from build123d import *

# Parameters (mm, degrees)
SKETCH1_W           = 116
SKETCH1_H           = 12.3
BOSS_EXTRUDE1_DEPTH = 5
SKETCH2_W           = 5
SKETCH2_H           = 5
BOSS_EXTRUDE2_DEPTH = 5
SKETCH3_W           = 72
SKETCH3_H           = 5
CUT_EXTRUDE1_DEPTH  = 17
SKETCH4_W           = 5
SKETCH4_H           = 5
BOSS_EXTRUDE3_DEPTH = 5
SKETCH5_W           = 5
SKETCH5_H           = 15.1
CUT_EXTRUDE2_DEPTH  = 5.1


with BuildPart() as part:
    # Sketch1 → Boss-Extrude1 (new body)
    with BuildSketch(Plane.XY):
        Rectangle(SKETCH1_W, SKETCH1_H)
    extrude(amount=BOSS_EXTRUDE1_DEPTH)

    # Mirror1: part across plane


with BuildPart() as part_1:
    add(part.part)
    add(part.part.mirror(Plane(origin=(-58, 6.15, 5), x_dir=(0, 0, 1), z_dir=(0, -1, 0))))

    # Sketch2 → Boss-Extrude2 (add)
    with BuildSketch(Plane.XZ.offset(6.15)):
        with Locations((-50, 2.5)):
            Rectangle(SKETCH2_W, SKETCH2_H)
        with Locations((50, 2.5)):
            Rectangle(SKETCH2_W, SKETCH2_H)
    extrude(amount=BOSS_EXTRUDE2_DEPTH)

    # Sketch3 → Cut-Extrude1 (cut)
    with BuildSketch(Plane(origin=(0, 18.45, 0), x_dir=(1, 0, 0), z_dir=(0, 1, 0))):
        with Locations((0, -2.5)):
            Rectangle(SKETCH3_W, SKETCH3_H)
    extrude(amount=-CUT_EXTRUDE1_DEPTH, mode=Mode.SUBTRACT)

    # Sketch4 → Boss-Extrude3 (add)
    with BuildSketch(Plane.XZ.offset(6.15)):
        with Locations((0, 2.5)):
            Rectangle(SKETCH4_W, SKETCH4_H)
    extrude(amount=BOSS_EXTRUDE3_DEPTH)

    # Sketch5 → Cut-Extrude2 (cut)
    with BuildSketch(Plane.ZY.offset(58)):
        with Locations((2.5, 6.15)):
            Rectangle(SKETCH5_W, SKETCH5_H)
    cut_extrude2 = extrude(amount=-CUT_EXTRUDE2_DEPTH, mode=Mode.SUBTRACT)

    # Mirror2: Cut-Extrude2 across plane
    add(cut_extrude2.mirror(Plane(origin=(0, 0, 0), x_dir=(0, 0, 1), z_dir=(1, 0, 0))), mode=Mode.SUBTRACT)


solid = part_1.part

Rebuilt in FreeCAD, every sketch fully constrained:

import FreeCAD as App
import Part
import Sketcher

V = App.Vector
Q = App.Units.Quantity


def add_polygon(sketch, points):
    """Adds a closed chain of lines whose ends are joined by coincident constraints."""
    first, n = sketch.GeometryCount, len(points)
    for a, b in zip(points, points[1:] + points[:1]):
        sketch.addGeometry(Part.LineSegment(App.Vector(*a, 0), App.Vector(*b, 0)), False)
    for i in range(n):
        sketch.addConstraint(Sketcher.Constraint("Coincident", first + i, 2, first + (i + 1) % n, 1))

doc = App.newDocument("Part")
body = doc.addObject("PartDesign::Body", "Body")

# Sketch on XY plane
sketch1 = doc.addObject("Sketcher::SketchObject", "Sketch")
body.addObject(sketch1)
sketch1.AttachmentSupport = (doc.XY_Plane, [""])
sketch1.MapMode = "FlatFace"
add_polygon(sketch1, [(-58, 6), (-58, -6), (58, -6), (58, 6)])  # lines 0-3
sketch1.addConstraint([
    Sketcher.Constraint("Vertical", 0),
    Sketcher.Constraint("Horizontal", 1),
    Sketcher.Constraint("Vertical", 2),
    Sketcher.Constraint("Horizontal", 3),
    Sketcher.Constraint("Symmetric", 0, 2, 2, 2, -1, 1),
    Sketcher.Constraint("DistanceX", 1, 1, 1, 2, Q("116 mm")),
    Sketcher.Constraint("DistanceY", 0, 2, 0, 1, Q("12.3 mm")),
])
pad1 = doc.addObject("PartDesign::Pad", "Pad")
body.addObject(pad1)
pad1.Profile = sketch1
pad1.Length = 5
body2 = doc.addObject("PartDesign::Body", "Body001")
doc.recompute()

body2.BaseFeature = body
doc.recompute()

mirroring = doc.addObject("Part::Mirroring", "Mirroring")
mirroring.Source = body
mirroring.Base = V(-58, 6.15, 5)
mirroring.Normal = V(0, -1, 0)
body3 = doc.addObject("PartDesign::Body", "Body002")
body3.BaseFeature = mirroring
boolean = doc.addObject("PartDesign::Boolean", "Boolean")
body2.addObject(boolean)
boolean.Type = "Fuse"
boolean.addObjects([body3])
doc.recompute()

# Sketch on XZ plane
sketch2 = doc.addObject("Sketcher::SketchObject", "Sketch001")
body2.addObject(sketch2)
sketch2.AttachmentSupport = (doc.getObject("XZ_Plane001"), [""])
sketch2.MapMode = "FlatFace"
sketch2.AttachmentOffset = App.Placement(V(0, 0, 6.15), App.Rotation())
add_polygon(sketch2, [(-52, 5), (-52, 0), (-48, 0), (-48, 5)])  # lines 0-3
add_polygon(sketch2, [(48, 5), (48, 0), (52, 0), (52, 5)])  # lines 4-7
sketch2.addConstraint([
    Sketcher.Constraint("Vertical", 0),
    Sketcher.Constraint("Horizontal", 1),
    Sketcher.Constraint("Vertical", 2),
    Sketcher.Constraint("Horizontal", 3),
    Sketcher.Constraint("Vertical", 4),
    Sketcher.Constraint("Horizontal", 5),
    Sketcher.Constraint("Vertical", 6),
    Sketcher.Constraint("Horizontal", 7),
    Sketcher.Constraint("Symmetric", 1, 2, 4, 2, -1, 1),
    Sketcher.Constraint("Symmetric", 0, 2, 5, 2, -2),
    Sketcher.Constraint("Horizontal", 3, 2, 6, 2),
    Sketcher.Constraint("Equal", 7, 0),
    Sketcher.Constraint("DistanceX", 1, 1, 1, 2, Q("5 mm")),
    Sketcher.Constraint("DistanceX", 1, 2, 4, 2, Q("95 mm")),
])
pad2 = doc.addObject("PartDesign::Pad", "Pad001")
body2.addObject(pad2)
pad2.Profile = sketch2
pad2.Length = 5

# Sketch on XZ plane
sketch3 = doc.addObject("Sketcher::SketchObject", "Sketch002")
body2.addObject(sketch3)
sketch3.AttachmentSupport = (doc.getObject("XZ_Plane001"), [""])
sketch3.MapMode = "FlatFace"
sketch3.AttachmentOffset = App.Placement(V(0, 0, -18.45), App.Rotation())
add_polygon(sketch3, [(-36, 0), (-36, 5), (36, 5), (36, 0)])  # lines 0-3
sketch3.addConstraint([
    Sketcher.Constraint("Vertical", 0),
    Sketcher.Constraint("Horizontal", 1),
    Sketcher.Constraint("Vertical", 2),
    Sketcher.Constraint("Horizontal", 3),
    Sketcher.Constraint("Symmetric", 2, 2, 3, 2, -1, 1),
    Sketcher.Constraint("DistanceX", 1, 1, 1, 2, Q("72 mm")),
    Sketcher.Constraint("DistanceY", 0, 1, 0, 2, Q("5 mm")),
])
pocket1 = doc.addObject("PartDesign::Pocket", "Pocket")
body2.addObject(pocket1)
pocket1.Profile = sketch3
pocket1.Length = 17
pocket1.Reversed = True

# Sketch on XZ plane
sketch4 = doc.addObject("Sketcher::SketchObject", "Sketch003")
body2.addObject(sketch4)
sketch4.AttachmentSupport = (doc.getObject("XZ_Plane001"), [""])
sketch4.MapMode = "FlatFace"
sketch4.AttachmentOffset = App.Placement(V(0, 0, 6.15), App.Rotation())
add_polygon(sketch4, [(-2, 5), (-2, 0), (2, 0), (2, 5)])  # lines 0-3
sketch4.addConstraint([
    Sketcher.Constraint("Vertical", 0),
    Sketcher.Constraint("Horizontal", 1),
    Sketcher.Constraint("Vertical", 2),
    Sketcher.Constraint("Horizontal", 3),
    Sketcher.Constraint("Symmetric", 0, 2, 1, 2, -1, 1),
    Sketcher.Constraint("Equal", 3, 0),
    Sketcher.Constraint("DistanceX", 1, 1, 1, 2, Q("5 mm")),
])
pad3 = doc.addObject("PartDesign::Pad", "Pad002")
body2.addObject(pad3)
pad3.Profile = sketch4
pad3.Length = 5

# Sketch on YZ plane
sketch5 = doc.addObject("Sketcher::SketchObject", "Sketch004")
body2.addObject(sketch5)
sketch5.AttachmentSupport = (doc.getObject("YZ_Plane001"), [""])
sketch5.MapMode = "FlatFace"
sketch5.AttachmentOffset = App.Placement(V(0, 0, -58), App.Rotation())
add_polygon(sketch5, [(14, 0), (-1, 0), (-1, 5), (14, 5)])  # lines 0-3
sketch5.addConstraint([
    Sketcher.Constraint("Horizontal", 0),
    Sketcher.Constraint("Vertical", 1),
    Sketcher.Constraint("Horizontal", 2),
    Sketcher.Constraint("Vertical", 3),
    Sketcher.Constraint("PointOnObject", 0, 2, -1),
    Sketcher.Constraint("DistanceY", 1, 1, 1, 2, Q("5 mm")),
    Sketcher.Constraint("DistanceX", 0, 2, 0, 1, Q("15.1 mm")),
    Sketcher.Constraint("DistanceX", 0, 2, -1, 1, Q("1.4 mm")),
])
pocket2 = doc.addObject("PartDesign::Pocket", "Pocket001")
body2.addObject(pocket2)
pocket2.Profile = sketch5
pocket2.Length = 5.1
pocket2.Reversed = True
doc.recompute()

mirrored = doc.addObject("PartDesign::Mirrored", "Mirrored")
body2.addObject(mirrored)
mirrored.Originals = [pocket2]
mirrored.MirrorPlane = (doc.getObject("YZ_Plane001"), [""])
body2.Tip = mirrored
mirroring.Visibility = False

doc.recompute()
